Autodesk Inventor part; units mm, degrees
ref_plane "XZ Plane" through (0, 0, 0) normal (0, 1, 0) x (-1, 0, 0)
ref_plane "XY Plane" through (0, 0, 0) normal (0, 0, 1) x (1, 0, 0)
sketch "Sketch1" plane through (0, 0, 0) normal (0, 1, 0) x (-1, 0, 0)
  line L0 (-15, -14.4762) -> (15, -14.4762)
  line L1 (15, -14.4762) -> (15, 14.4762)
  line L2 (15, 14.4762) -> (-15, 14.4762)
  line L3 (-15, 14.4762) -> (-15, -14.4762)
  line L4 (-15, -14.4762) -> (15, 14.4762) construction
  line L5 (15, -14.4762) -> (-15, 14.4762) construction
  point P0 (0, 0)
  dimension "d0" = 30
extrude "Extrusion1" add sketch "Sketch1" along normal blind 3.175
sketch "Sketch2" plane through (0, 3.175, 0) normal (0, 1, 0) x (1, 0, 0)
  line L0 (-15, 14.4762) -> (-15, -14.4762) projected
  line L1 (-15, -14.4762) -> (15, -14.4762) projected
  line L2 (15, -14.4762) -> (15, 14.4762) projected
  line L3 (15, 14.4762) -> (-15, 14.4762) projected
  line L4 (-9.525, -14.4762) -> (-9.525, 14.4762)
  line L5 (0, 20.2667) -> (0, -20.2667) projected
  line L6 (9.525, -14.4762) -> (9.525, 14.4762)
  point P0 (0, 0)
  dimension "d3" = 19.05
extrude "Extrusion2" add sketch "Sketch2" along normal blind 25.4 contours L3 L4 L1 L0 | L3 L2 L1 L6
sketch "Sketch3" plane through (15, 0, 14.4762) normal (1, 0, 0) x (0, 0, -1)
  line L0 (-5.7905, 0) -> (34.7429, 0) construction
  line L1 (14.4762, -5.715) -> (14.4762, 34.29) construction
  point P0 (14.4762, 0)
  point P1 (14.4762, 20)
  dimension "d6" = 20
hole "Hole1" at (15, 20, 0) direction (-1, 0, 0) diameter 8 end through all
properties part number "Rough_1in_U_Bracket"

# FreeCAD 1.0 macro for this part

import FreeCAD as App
import Part
import Sketcher
from FreeCAD import Vector
Q = App.Units.Quantity

doc = App.newDocument("Part")
params = doc.addObject("Spreadsheet::Sheet", "Params")
for row, (alias, value) in enumerate([
    ("pad1_length", "0.125 in"),
    ("pad2_length", "1 in"),
    ("hole_diameter", "8 mm"),
], start=1):
    params.set(f"A{row}", alias)
    params.set(f"B{row}", "=" + value)
    params.setAlias(f"B{row}", alias)

body = doc.addObject("PartDesign::Body", "Body")

# Sketch on XZ plane
sketch1 = body.newObject("Sketcher::SketchObject", "Sketch")
sketch1.AttachmentSupport = (doc.getObject("XZ_Plane"), [""])
sketch1.MapMode = "FlatFace"
sketch1.addGeometry([
    Part.LineSegment(Vector(15, 14, 0), Vector(15, -14, 0)),
    Part.LineSegment(Vector(15, -14, 0), Vector(-15, -14, 0)),
    Part.LineSegment(Vector(-15, -14, 0), Vector(-15, 14, 0)),
    Part.LineSegment(Vector(-15, 14, 0), Vector(15, 14, 0)),
], False)
sketch1.addConstraint([
    Sketcher.Constraint("Coincident", 0, 2, 1, 1),
    Sketcher.Constraint("Coincident", 1, 2, 2, 1),
    Sketcher.Constraint("Coincident", 2, 2, 3, 1),
    Sketcher.Constraint("Coincident", 3, 2, 0, 1),
    Sketcher.Constraint("Vertical", 0),
    Sketcher.Constraint("Horizontal", 1),
    Sketcher.Constraint("Vertical", 2),
    Sketcher.Constraint("Horizontal", 3),
    Sketcher.Constraint("Symmetric", 0, 2, 2, 2, -1, 1),
    Sketcher.Constraint("DistanceX", 1, 2, 1, 1, Q("1.1811 in")),
    Sketcher.Constraint("DistanceY", 0, 2, 0, 1, 28.9524),
])
pad1 = body.newObject("PartDesign::Pad", "Pad")
pad1.Profile = sketch1
pad1.setExpression("Length", "Params.pad1_length")
pad1.Reversed = True

# Sketch on XZ plane
sketch2 = body.newObject("Sketcher::SketchObject", "Sketch001")
sketch2.AttachmentSupport = (doc.getObject("XZ_Plane"), [""])
sketch2.MapMode = "FlatFace"
sketch2.AttachmentOffset = App.Placement(Vector(0, 0, -0.125 * 25.4), App.Rotation())
sketch2.addGeometry([
    Part.LineSegment(Vector(-10, -14, 0), Vector(-15, -14, 0)),  # 0
    Part.LineSegment(Vector(-15, -14, 0), Vector(-15, 14, 0)),  # 1
    Part.LineSegment(Vector(-15, 14, 0), Vector(-10, 14, 0)),  # 2
    Part.LineSegment(Vector(-10, 14, 0), Vector(-10, -14, 0)),  # 3
    Part.LineSegment(Vector(15, -14, 0), Vector(10, -14, 0)),  # 4
    Part.LineSegment(Vector(10, -14, 0), Vector(10, 14, 0)),  # 5
    Part.LineSegment(Vector(10, 14, 0), Vector(15, 14, 0)),  # 6
    Part.LineSegment(Vector(15, 14, 0), Vector(15, -14, 0)),  # 7
], False)
sketch2.addConstraint([
    Sketcher.Constraint("Coincident", 0, 2, 1, 1),
    Sketcher.Constraint("Coincident", 1, 2, 2, 1),
    Sketcher.Constraint("Coincident", 2, 2, 3, 1),
    Sketcher.Constraint("Coincident", 3, 2, 0, 1),
    Sketcher.Constraint("Coincident", 4, 2, 5, 1),
    Sketcher.Constraint("Coincident", 5, 2, 6, 1),
    Sketcher.Constraint("Coincident", 6, 2, 7, 1),
    Sketcher.Constraint("Coincident", 7, 2, 4, 1),
    Sketcher.Constraint("Horizontal", 0),
    Sketcher.Constraint("Vertical", 1),
    Sketcher.Constraint("Horizontal", 2),
    Sketcher.Constraint("Vertical", 3),
    Sketcher.Constraint("Horizontal", 4),
    Sketcher.Constraint("Vertical", 5),
    Sketcher.Constraint("Horizontal", 6),
    Sketcher.Constraint("Vertical", 7),
    Sketcher.Constraint("Symmetric", 2, 2, 4, 2, -1, 1),
    Sketcher.Constraint("Symmetric", 0, 2, 6, 2, -1, 1),
    Sketcher.Constraint("Horizontal", 3, 2, 4, 2),
    Sketcher.Constraint("DistanceX", 3, 2, 4, 2, Q("0.75 in")),
    Sketcher.Constraint("DistanceX", 0, 2, 0, 1, 5.475),
    Sketcher.Constraint("DistanceY", 1, 1, 1, 2, 28.9524),
])
pad2 = body.newObject("PartDesign::Pad", "Pad001")
pad2.Profile = sketch2
pad2.setExpression("Length", "Params.pad2_length")
pad2.Reversed = True

# Sketch on YZ plane
sketch3 = body.newObject("Sketcher::SketchObject", "Sketch002")
sketch3.AttachmentSupport = (doc.getObject("YZ_Plane"), [""])
sketch3.MapMode = "FlatFace"
sketch3.AttachmentOffset = App.Placement(Vector(0, 0, 15), App.Rotation())
sketch3.addGeometry(Part.Circle(Vector(20, 0, 0), Vector(0, 0, 1), 4), False)
sketch3.addConstraint([
    Sketcher.Constraint("PointOnObject", 0, 3, -1),
    Sketcher.Constraint("Diameter", 0, 8.0),
    Sketcher.Constraint("DistanceX", -1, 1, 0, 3, Q("0.7874 in")),
])
doc.recompute()
hole = body.newObject("PartDesign::Hole", "Hole")
hole.Profile = sketch3
hole.ThreadType = "None"
hole.setExpression("Diameter", "Params.hole_diameter")
hole.DepthType = "ThroughAll"

doc.recompute()
